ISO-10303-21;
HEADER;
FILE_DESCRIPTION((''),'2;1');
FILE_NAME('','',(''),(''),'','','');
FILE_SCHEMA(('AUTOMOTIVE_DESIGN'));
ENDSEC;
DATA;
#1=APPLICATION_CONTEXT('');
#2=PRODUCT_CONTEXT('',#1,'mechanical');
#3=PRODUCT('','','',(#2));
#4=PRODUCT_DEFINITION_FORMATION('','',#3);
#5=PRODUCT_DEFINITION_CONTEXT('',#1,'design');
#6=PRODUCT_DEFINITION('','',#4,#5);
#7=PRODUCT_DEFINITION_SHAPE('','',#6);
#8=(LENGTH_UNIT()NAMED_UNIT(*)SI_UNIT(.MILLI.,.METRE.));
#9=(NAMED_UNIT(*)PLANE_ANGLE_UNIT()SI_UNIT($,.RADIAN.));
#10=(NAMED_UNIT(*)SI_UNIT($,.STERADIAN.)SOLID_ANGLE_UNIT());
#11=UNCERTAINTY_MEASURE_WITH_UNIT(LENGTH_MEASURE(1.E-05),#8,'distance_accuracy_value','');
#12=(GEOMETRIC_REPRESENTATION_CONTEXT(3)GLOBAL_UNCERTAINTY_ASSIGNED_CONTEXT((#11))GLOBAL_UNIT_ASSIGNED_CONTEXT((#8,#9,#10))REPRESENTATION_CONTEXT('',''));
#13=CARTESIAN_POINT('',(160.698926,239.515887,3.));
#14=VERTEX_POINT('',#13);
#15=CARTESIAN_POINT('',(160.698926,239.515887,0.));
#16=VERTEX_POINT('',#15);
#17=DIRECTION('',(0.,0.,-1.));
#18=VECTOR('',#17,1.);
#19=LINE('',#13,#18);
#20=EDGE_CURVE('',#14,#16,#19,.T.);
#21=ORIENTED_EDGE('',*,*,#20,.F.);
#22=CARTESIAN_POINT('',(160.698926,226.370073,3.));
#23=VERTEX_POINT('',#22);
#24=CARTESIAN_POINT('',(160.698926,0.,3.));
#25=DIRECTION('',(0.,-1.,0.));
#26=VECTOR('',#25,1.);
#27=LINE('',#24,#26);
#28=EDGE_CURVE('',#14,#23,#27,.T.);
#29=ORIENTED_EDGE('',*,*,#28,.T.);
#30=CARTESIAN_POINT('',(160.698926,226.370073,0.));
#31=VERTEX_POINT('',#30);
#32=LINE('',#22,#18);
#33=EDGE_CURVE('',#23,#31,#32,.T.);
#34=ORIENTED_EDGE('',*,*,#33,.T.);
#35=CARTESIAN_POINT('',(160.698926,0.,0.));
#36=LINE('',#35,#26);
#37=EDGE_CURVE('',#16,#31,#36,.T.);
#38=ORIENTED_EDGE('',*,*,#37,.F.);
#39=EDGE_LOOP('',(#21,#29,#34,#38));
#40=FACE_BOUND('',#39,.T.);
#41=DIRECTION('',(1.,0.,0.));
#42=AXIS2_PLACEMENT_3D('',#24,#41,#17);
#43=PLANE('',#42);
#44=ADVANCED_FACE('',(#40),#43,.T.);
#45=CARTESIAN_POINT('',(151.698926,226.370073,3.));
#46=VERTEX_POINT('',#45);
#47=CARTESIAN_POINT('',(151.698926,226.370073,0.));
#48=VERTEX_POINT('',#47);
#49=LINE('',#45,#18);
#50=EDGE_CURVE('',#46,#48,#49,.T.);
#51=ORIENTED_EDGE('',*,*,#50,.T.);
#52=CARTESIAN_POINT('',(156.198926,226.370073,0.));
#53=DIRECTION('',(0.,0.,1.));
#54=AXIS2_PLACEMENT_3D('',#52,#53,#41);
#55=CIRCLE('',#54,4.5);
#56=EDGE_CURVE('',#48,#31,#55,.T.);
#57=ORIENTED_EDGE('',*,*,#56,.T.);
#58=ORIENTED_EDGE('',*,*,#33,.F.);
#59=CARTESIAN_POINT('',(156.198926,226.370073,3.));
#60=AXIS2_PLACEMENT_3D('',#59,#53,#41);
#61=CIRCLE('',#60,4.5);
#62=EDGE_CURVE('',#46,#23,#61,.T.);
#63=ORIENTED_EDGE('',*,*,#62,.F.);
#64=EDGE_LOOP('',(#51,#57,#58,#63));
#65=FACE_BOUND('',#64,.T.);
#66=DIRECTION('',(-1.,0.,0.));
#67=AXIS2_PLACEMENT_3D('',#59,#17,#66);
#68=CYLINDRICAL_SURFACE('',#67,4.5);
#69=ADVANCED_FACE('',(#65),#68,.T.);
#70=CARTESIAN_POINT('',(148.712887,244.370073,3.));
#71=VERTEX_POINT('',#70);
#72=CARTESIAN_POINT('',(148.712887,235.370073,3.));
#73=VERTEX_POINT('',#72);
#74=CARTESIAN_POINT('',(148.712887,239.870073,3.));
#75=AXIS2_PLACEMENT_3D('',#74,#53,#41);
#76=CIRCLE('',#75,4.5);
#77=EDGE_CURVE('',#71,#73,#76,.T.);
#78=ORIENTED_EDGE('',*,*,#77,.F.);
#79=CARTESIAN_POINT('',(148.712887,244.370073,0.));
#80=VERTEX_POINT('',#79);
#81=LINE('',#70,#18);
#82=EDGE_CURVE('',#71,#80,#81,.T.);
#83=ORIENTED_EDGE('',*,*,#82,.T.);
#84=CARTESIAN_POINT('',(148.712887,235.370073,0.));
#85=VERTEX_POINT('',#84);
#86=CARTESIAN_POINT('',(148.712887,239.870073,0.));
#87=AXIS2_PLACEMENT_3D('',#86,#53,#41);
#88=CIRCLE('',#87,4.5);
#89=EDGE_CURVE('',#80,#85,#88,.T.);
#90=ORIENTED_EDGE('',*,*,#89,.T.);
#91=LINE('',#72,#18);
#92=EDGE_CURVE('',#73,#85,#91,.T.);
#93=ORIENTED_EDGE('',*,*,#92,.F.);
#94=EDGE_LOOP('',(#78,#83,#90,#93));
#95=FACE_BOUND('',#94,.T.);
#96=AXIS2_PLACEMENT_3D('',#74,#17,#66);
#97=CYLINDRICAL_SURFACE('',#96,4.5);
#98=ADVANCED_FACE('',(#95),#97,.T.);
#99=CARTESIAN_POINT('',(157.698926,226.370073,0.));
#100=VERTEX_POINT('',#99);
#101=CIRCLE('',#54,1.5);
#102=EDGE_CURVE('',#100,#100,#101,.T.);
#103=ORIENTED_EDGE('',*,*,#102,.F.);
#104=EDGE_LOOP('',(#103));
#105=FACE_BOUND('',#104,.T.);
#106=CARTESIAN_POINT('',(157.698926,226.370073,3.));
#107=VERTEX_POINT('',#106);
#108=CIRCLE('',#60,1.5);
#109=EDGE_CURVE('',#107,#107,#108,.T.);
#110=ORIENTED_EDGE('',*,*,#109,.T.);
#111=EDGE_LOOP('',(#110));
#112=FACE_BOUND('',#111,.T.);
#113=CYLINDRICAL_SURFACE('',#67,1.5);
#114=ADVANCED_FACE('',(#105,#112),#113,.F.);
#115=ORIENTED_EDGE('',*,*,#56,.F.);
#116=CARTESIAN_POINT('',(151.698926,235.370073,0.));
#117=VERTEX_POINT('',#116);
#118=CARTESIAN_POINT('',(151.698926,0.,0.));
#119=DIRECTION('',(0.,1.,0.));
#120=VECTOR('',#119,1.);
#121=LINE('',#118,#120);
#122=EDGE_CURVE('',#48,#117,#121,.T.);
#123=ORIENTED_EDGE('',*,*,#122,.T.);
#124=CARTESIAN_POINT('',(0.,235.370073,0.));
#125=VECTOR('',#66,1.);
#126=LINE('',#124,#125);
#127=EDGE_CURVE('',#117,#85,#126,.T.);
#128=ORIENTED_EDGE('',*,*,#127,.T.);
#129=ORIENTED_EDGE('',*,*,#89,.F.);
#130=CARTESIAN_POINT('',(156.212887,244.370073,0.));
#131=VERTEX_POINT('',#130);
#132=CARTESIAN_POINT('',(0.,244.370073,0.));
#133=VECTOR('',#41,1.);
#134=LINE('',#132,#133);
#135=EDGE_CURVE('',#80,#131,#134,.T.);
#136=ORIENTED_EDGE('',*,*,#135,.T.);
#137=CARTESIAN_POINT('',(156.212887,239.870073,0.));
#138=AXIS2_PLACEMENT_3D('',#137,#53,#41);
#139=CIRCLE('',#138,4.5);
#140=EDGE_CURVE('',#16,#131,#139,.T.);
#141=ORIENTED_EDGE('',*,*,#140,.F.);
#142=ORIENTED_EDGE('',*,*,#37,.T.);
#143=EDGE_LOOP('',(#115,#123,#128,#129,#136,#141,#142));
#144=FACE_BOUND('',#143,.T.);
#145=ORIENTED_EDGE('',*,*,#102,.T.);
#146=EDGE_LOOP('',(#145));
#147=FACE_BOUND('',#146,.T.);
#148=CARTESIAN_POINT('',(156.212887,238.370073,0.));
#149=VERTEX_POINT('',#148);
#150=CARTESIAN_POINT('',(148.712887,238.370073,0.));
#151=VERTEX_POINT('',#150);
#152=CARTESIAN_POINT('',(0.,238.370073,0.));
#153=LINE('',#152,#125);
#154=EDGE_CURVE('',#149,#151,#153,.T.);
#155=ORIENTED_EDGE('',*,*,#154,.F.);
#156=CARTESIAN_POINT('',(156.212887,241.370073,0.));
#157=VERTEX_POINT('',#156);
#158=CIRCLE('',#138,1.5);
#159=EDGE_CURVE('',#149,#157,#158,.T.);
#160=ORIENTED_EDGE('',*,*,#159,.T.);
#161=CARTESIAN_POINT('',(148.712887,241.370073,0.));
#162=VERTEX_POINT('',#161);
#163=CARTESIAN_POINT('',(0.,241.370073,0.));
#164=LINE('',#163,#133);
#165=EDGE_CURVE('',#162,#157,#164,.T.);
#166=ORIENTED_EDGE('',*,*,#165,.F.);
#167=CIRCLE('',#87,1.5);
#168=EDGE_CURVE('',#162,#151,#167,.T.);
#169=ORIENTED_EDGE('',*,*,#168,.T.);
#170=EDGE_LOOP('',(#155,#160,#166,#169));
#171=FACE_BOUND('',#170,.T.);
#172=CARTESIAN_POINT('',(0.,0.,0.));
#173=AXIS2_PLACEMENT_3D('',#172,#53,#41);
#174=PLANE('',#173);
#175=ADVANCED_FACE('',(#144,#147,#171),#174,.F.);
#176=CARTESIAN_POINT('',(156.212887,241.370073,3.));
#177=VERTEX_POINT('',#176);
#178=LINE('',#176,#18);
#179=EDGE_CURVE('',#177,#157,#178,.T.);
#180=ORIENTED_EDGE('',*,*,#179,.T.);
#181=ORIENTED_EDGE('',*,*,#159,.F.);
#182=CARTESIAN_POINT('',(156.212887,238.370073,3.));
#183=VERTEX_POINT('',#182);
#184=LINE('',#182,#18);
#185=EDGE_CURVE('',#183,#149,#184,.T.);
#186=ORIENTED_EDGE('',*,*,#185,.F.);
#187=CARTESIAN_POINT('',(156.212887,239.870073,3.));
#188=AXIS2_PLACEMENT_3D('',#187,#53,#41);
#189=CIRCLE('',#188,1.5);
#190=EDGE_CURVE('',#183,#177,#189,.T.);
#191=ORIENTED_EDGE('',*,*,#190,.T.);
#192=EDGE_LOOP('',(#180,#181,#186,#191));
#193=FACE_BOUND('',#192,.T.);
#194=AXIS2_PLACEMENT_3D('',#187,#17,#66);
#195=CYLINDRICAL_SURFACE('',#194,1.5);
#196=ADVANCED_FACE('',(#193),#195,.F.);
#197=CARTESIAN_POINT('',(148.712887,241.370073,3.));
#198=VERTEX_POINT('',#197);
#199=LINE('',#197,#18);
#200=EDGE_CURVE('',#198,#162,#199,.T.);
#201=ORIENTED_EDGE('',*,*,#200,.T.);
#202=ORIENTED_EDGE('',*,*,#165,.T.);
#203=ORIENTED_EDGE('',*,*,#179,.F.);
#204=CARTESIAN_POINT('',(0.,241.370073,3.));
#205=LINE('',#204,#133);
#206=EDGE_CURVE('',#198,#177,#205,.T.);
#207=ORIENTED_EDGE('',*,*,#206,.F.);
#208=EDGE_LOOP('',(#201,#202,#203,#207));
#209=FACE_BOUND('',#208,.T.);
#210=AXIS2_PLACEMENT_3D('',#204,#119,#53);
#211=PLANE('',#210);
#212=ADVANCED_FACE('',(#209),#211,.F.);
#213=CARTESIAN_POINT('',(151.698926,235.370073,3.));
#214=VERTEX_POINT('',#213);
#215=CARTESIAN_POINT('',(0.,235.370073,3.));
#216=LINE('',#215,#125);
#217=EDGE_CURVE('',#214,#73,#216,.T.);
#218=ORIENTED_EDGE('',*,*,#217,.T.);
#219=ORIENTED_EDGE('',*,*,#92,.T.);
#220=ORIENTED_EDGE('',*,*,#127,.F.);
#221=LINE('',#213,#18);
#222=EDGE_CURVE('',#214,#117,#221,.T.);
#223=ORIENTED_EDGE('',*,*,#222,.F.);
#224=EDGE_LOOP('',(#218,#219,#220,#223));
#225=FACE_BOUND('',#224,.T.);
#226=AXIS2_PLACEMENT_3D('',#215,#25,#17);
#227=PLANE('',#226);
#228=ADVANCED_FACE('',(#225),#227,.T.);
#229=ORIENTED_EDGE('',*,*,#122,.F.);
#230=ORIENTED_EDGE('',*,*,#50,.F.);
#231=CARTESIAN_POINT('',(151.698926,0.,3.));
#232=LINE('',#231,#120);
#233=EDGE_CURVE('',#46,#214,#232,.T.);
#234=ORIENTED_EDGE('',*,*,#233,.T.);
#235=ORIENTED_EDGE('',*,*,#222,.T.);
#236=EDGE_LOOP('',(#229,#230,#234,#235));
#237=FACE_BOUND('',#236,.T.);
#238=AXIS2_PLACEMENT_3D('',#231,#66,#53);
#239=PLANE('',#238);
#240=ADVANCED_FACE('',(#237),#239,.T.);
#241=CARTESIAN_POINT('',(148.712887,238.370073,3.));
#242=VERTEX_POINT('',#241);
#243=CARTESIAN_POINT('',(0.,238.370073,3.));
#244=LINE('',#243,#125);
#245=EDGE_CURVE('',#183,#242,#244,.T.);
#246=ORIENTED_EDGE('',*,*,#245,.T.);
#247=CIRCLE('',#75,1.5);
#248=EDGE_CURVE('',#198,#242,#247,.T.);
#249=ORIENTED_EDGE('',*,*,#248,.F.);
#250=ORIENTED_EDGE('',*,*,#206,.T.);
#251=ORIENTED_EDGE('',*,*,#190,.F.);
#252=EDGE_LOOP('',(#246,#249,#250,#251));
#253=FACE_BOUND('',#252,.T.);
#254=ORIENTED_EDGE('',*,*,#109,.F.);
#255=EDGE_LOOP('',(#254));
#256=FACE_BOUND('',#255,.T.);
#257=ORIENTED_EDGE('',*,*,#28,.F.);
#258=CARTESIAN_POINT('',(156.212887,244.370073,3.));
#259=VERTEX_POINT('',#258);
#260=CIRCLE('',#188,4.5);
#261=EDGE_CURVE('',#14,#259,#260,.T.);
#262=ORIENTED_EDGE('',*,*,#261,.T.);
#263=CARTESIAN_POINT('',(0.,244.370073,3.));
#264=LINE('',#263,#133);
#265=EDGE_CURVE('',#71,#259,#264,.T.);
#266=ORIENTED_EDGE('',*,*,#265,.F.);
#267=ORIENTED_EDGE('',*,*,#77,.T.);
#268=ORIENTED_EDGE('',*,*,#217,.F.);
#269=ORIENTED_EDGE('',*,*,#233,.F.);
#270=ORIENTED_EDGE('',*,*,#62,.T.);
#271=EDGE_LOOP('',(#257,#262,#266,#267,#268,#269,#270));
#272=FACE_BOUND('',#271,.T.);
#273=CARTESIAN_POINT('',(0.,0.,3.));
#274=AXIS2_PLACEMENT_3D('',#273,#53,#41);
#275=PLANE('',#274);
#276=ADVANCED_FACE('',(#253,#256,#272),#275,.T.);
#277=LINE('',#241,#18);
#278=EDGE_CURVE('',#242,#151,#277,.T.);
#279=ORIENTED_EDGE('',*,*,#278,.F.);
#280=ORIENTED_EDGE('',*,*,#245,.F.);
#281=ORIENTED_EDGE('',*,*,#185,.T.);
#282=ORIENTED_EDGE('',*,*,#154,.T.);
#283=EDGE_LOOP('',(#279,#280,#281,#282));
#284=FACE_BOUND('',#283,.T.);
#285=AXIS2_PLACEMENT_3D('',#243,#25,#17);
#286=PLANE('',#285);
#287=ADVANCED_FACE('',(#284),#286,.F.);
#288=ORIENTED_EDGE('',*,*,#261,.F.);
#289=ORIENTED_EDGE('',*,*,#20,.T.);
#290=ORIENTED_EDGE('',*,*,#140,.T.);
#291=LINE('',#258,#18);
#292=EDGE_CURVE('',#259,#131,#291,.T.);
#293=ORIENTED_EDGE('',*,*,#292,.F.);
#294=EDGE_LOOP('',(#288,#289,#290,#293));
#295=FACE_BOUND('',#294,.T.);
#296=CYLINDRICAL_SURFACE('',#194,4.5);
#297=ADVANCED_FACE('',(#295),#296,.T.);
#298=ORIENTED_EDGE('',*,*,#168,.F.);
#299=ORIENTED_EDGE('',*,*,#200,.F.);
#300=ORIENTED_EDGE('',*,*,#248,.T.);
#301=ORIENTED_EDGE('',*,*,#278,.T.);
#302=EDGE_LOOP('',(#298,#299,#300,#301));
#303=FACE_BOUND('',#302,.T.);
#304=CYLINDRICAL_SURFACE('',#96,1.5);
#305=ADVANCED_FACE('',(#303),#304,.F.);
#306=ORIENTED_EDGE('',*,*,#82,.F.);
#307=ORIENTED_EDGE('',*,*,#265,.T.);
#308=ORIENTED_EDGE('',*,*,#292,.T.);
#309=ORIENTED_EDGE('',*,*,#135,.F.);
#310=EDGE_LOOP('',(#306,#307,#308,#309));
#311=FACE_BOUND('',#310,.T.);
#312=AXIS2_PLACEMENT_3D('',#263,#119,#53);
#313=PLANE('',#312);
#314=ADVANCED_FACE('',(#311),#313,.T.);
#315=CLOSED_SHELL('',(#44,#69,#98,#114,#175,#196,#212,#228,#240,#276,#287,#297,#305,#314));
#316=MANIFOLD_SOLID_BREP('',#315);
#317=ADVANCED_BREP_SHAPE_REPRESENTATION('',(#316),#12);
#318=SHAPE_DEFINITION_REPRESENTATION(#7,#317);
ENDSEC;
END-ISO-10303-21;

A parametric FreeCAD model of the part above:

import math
import FreeCAD as App
import Part
import Sketcher

V = App.Vector

doc = App.newDocument("Part")
params = doc.addObject("Spreadsheet::Sheet", "Params")
for row, (alias, value) in enumerate([
    ("sketch1_diameter", "3 mm"),
    ("sketch1_radius", "4.5 mm"),
    ("sketch1_height", "9 mm"),
    ("sketch1_width", "7.5 mm"),
    ("pad1_length", "3 mm"),
], start=1):
    params.set(f"A{row}", alias)
    params.set(f"B{row}", "=" + value)
    params.setAlias(f"B{row}", alias)

body = doc.addObject("PartDesign::Body", "Body")

sketch1 = body.newObject("Sketcher::SketchObject", "Sketch")
sketch1.AttachmentSupport = (doc.getObject("XY_Plane"), [""])
sketch1.MapMode = "FlatFace"
sketch1.addGeometry(Part.LineSegment(V(160.7, 226.4, 0), V(160.7, 239.5, 0)), False)
sketch1.addGeometry(Part.ArcOfCircle(Part.Circle(V(156.2, 239.9, 0), V(0, 0, 1), 4.5), math.radians(-5), math.radians(90)), False)
sketch1.addGeometry(Part.LineSegment(V(156.2, 244.4, 0), V(148.7, 244.4, 0)), False)
sketch1.addGeometry(Part.ArcOfCircle(Part.Circle(V(148.7, 239.9, 0), V(0, 0, 1), 4.5), math.radians(90), math.radians(270)), False)
sketch1.addGeometry(Part.LineSegment(V(148.7, 235.4, 0), V(151.7, 235.4, 0)), False)
sketch1.addGeometry(Part.LineSegment(V(151.7, 235.4, 0), V(151.7, 226.4, 0)), False)
sketch1.addGeometry(Part.ArcOfCircle(Part.Circle(V(156.2, 226.4, 0), V(0, 0, 1), 4.5), math.radians(180), math.radians(360)), False)
sketch1.addGeometry(Part.Circle(V(156.2, 226.4, 0), V(0, 0, 1), 1.5), False)
sketch1.addGeometry(Part.LineSegment(V(148.7, 241.4, 0), V(156.2, 241.4, 0)), False)
sketch1.addGeometry(Part.ArcOfCircle(Part.Circle(V(156.2, 239.9, 0), V(0, 0, 1), 1.5), math.radians(-90), math.radians(90)), False)
sketch1.addGeometry(Part.LineSegment(V(156.2, 238.4, 0), V(148.7, 238.4, 0)), False)
sketch1.addGeometry(Part.ArcOfCircle(Part.Circle(V(148.7, 239.9, 0), V(0, 0, 1), 1.5), math.radians(90), math.radians(270)), False)
sketch1.addConstraint(Sketcher.Constraint("Coincident", 0, 2, 1, 1))
sketch1.addConstraint(Sketcher.Constraint("Tangent", 1, 2, 2, 1))
sketch1.addConstraint(Sketcher.Constraint("Tangent", 2, 2, 3, 1))
sketch1.addConstraint(Sketcher.Constraint("Tangent", 3, 2, 4, 1))
sketch1.addConstraint(Sketcher.Constraint("Coincident", 4, 2, 5, 1))
sketch1.addConstraint(Sketcher.Constraint("Tangent", 5, 2, 6, 1))
sketch1.addConstraint(Sketcher.Constraint("Tangent", 6, 2, 0, 1))
sketch1.addConstraint(Sketcher.Constraint("Tangent", 8, 2, 9, 2))
sketch1.addConstraint(Sketcher.Constraint("Tangent", 9, 1, 10, 1))
sketch1.addConstraint(Sketcher.Constraint("Tangent", 10, 2, 11, 2))
sketch1.addConstraint(Sketcher.Constraint("Tangent", 11, 1, 8, 1))
sketch1.addConstraint(Sketcher.Constraint("Vertical", 0))
sketch1.addConstraint(Sketcher.Constraint("Horizontal", 2))
sketch1.addConstraint(Sketcher.Constraint("Horizontal", 4))
sketch1.addConstraint(Sketcher.Constraint("Vertical", 5))
sketch1.addConstraint(Sketcher.Constraint("Horizontal", 8))
sketch1.addConstraint(Sketcher.Constraint("Horizontal", 10))
sketch1.addConstraint(Sketcher.Constraint("Coincident", 7, 3, 6, 3))
sketch1.addConstraint(Sketcher.Constraint("Coincident", 9, 3, 1, 3))
sketch1.addConstraint(Sketcher.Constraint("Coincident", 11, 3, 3, 3))
sketch1.addConstraint(Sketcher.Constraint("Equal", 3, 6))
sketch1.addConstraint(Sketcher.Constraint("Equal", 7, 9))
sketch1.addConstraint(Sketcher.Constraint("Diameter", 7, 3.0))
sketch1.addConstraint(Sketcher.Constraint("Radius", 1, 4.5))
sketch1.addConstraint(Sketcher.Constraint("DistanceY", 5, 2, 5, 1, 9.0))
sketch1.addConstraint(Sketcher.Constraint("DistanceX", 2, 2, 2, 1, 7.5))
sketch1.addConstraint(Sketcher.Constraint("DistanceX", 4, 1, 4, 2, 2.98604))
sketch1.addConstraint(Sketcher.Constraint("DistanceX", -1, 1, 1, 3, 156.212887))
sketch1.addConstraint(Sketcher.Constraint("DistanceY", -1, 1, 1, 3, 239.870073))
sketch1.setExpression("Constraints[22]", "Params.sketch1_diameter")
sketch1.setExpression("Constraints[23]", "Params.sketch1_radius")
sketch1.setExpression("Constraints[24]", "Params.sketch1_height")
sketch1.setExpression("Constraints[25]", "Params.sketch1_width")
pad1 = body.newObject("PartDesign::Pad", "Pad")
pad1.Profile = sketch1
pad1.setExpression("Length", "Params.pad1_length")

doc.recompute()
